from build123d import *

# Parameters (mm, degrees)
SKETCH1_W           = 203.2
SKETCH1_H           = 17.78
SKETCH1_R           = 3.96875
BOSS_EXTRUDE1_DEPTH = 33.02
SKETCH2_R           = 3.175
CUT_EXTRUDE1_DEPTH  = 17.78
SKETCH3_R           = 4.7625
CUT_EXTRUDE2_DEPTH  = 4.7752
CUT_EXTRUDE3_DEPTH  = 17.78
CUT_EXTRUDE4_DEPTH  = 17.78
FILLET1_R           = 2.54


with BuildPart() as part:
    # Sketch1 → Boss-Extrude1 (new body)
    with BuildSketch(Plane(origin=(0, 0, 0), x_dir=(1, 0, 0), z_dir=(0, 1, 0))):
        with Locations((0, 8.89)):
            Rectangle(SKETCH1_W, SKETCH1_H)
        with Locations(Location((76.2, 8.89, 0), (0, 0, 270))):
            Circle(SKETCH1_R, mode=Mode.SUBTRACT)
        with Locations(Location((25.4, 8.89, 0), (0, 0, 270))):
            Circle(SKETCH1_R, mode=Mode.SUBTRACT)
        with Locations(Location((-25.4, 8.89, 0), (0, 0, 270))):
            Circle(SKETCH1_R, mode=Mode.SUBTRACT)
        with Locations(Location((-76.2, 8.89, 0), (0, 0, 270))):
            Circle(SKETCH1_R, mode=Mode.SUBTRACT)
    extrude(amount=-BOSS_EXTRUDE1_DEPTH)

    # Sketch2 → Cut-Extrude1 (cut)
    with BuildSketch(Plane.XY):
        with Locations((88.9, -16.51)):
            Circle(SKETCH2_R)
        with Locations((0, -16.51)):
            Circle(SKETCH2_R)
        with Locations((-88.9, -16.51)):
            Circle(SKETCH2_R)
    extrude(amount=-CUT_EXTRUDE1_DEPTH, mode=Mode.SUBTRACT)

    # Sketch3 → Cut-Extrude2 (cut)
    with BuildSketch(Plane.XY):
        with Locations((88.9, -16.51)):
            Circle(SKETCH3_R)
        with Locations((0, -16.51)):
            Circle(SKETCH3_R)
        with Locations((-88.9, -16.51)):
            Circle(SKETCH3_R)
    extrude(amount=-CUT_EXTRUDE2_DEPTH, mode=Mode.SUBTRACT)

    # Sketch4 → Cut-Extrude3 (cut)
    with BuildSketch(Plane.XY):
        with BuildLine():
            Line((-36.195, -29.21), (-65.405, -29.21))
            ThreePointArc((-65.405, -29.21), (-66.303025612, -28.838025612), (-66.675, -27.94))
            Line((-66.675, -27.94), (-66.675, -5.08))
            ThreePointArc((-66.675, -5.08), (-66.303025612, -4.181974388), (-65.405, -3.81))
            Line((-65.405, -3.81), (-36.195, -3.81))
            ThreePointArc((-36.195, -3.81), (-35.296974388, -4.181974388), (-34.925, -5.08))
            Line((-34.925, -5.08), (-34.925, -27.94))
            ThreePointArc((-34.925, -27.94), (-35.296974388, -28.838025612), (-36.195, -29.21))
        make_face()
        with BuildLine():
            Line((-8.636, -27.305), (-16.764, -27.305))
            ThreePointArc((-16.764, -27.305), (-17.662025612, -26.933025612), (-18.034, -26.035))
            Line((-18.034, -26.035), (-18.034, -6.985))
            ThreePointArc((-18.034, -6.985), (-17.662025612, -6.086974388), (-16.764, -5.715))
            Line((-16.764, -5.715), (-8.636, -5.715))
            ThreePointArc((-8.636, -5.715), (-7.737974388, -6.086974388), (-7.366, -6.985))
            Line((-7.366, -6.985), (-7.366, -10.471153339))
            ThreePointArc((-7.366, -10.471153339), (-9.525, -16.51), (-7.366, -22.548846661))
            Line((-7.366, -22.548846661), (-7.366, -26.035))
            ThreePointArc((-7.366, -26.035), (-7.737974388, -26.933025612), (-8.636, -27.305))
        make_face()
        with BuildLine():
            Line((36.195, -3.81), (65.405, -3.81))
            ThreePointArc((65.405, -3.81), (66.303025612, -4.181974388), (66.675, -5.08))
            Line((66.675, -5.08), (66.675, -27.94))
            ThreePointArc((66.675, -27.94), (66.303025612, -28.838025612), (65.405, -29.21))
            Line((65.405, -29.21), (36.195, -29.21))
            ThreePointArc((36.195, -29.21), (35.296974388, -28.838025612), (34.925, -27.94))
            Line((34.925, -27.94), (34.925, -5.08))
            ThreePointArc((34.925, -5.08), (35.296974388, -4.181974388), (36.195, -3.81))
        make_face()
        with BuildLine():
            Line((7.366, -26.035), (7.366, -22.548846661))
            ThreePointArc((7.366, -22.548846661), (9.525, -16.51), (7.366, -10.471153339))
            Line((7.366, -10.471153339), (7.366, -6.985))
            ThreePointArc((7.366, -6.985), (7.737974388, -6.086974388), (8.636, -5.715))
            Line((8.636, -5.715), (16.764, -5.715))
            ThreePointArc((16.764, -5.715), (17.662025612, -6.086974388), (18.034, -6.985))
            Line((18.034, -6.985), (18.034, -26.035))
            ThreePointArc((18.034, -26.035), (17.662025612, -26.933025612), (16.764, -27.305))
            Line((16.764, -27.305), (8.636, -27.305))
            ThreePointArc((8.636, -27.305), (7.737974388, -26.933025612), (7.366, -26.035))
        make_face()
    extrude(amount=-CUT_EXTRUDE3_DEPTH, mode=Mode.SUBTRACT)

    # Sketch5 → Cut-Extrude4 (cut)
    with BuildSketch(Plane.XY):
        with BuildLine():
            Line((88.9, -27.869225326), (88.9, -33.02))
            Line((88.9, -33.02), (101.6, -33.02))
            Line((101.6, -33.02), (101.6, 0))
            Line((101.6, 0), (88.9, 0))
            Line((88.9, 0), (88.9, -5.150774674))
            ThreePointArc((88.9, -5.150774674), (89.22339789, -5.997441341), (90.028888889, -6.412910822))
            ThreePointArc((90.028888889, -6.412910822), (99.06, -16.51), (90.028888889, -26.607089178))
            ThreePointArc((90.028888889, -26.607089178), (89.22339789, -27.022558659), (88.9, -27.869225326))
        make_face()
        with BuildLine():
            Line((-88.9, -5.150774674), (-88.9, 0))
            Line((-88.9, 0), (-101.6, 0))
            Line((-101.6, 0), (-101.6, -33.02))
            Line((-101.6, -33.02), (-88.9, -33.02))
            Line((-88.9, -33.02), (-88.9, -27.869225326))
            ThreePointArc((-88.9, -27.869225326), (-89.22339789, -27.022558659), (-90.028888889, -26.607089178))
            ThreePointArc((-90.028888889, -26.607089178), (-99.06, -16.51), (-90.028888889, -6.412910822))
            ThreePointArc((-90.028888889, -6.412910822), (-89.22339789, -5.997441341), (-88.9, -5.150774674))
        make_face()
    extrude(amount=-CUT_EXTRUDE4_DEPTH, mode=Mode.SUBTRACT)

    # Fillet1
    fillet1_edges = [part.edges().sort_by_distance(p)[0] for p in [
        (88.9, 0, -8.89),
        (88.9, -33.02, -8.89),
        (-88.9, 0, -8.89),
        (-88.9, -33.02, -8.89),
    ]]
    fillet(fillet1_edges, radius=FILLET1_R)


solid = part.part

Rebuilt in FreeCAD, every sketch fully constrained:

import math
import FreeCAD as App
import Part
import Sketcher
from FreeCAD import Vector
Q = App.Units.Quantity


def edges_at(feature, points):
    """Names of the edges that pass closest to the given points."""
    edges = feature.Shape.Edges
    near = lambda p: min(range(len(edges)), key=lambda i: edges[i].distToShape(Part.Vertex(*p))[0])
    return sorted({f"Edge{near(p) + 1}" for p in points})


def add_polygon(sketch, points):
    """Adds a closed chain of lines whose ends are joined by coincident constraints."""
    first, n = sketch.GeometryCount, len(points)
    for a, b in zip(points, points[1:] + points[:1]):
        sketch.addGeometry(Part.LineSegment(App.Vector(*a, 0), App.Vector(*b, 0)), False)
    for i in range(n):
        sketch.addConstraint(Sketcher.Constraint("Coincident", first + i, 2, first + (i + 1) % n, 1))

doc = App.newDocument("Part")
body = doc.addObject("PartDesign::Body", "Body")

sketch1 = doc.addObject("Sketcher::SketchObject", "Sketch")
body.addObject(sketch1)
sketch1.AttachmentSupport = (doc.XZ_Plane, [""])
sketch1.MapMode = "FlatFace"
add_polygon(sketch1, [(-101.6, -17.8), (-101.6, 0), (101.6, 0), (101.6, -17.8)])
sketch1.addGeometry(Part.Circle(Vector(-76.2, -8.9, 0), Vector(0, 0, 1), 4), False)
sketch1.addGeometry(Part.Circle(Vector(-25.4, -8.9, 0), Vector(0, 0, 1), 4), False)
sketch1.addGeometry(Part.Circle(Vector(25.4, -8.9, 0), Vector(0, 0, 1), 4), False)
sketch1.addGeometry(Part.Circle(Vector(76.2, -8.9, 0), Vector(0, 0, 1), 4), False)
sketch1.addConstraint([
    Sketcher.Constraint("Vertical", 0),
    Sketcher.Constraint("Horizontal", 1),
    Sketcher.Constraint("Vertical", 2),
    Sketcher.Constraint("Horizontal", 3),
    Sketcher.Constraint("Equal", 4, 5),
    Sketcher.Constraint("Equal", 5, 6),
    Sketcher.Constraint("Equal", 6, 7),
    Sketcher.Constraint("Symmetric", 0, 2, 1, 2, -1, 1),
    Sketcher.Constraint("Symmetric", 5, 3, 6, 3, -2),
    Sketcher.Constraint("Symmetric", 4, 3, 7, 3, -2),
    Sketcher.Constraint("Horizontal", 4, 3, 5, 3),
    Sketcher.Constraint("DistanceX", 1, 1, 1, 2, Q("8 in")),
    Sketcher.Constraint("Diameter", 4, Q("0.3125 in")),
    Sketcher.Constraint("DistanceY", 0, 1, 0, 2, Q("0.7 in")),
    Sketcher.Constraint("DistanceX", 4, 3, -1, 1, Q("3 in")),
    Sketcher.Constraint("DistanceX", 5, 3, -1, 1, Q("1 in")),
    Sketcher.Constraint("DistanceY", 4, 3, -1, 1, Q("0.35 in")),
])
pad1 = doc.addObject("PartDesign::Pad", "Pad")
body.addObject(pad1)
pad1.Profile = sketch1
pad1.Length = Q("1.3 in")

sketch2 = doc.addObject("Sketcher::SketchObject", "Sketch001")
body.addObject(sketch2)
sketch2.AttachmentSupport = (doc.XY_Plane, [""])
sketch2.MapMode = "FlatFace"
sketch2.addGeometry([
    Part.Circle(Vector(88.9, -16.5, 0), Vector(0, 0, 1), 3.2),
    Part.Circle(Vector(0, -16.5, 0), Vector(0, 0, 1), 3.2),
    Part.Circle(Vector(-88.9, -16.5, 0), Vector(0, 0, 1), 3.2),
], False)
sketch2.addConstraint([
    Sketcher.Constraint("Equal", 0, 1),
    Sketcher.Constraint("Equal", 1, 2),
    Sketcher.Constraint("Symmetric", 0, 3, 2, 3, -2),
    Sketcher.Constraint("PointOnObject", 1, 3, -2),
    Sketcher.Constraint("Horizontal", 0, 3, 1, 3),
    Sketcher.Constraint("Diameter", 0, Q("0.25 in")),
    Sketcher.Constraint("DistanceX", 2, 3, 0, 3, Q("7 in")),
    Sketcher.Constraint("DistanceY", 0, 3, -1, 1, Q("0.65 in")),
])
pocket1 = doc.addObject("PartDesign::Pocket", "Pocket")
body.addObject(pocket1)
pocket1.Profile = sketch2
pocket1.Length = Q("0.7 in")

sketch3 = doc.addObject("Sketcher::SketchObject", "Sketch002")
body.addObject(sketch3)
sketch3.AttachmentSupport = (doc.XY_Plane, [""])
sketch3.MapMode = "FlatFace"
sketch3.addGeometry([
    Part.Circle(Vector(88.9, -16.5, 0), Vector(0, 0, 1), 4.8),
    Part.Circle(Vector(0, -16.5, 0), Vector(0, 0, 1), 4.8),
    Part.Circle(Vector(-88.9, -16.5, 0), Vector(0, 0, 1), 4.8),
], False)
sketch3.addConstraint([
    Sketcher.Constraint("Equal", 0, 1),
    Sketcher.Constraint("Equal", 1, 2),
    Sketcher.Constraint("Symmetric", 0, 3, 2, 3, -2),
    Sketcher.Constraint("PointOnObject", 1, 3, -2),
    Sketcher.Constraint("Horizontal", 0, 3, 1, 3),
    Sketcher.Constraint("Diameter", 0, Q("0.375 in")),
    Sketcher.Constraint("DistanceX", 2, 3, 0, 3, Q("7 in")),
    Sketcher.Constraint("DistanceY", 0, 3, -1, 1, Q("0.65 in")),
])
pocket2 = doc.addObject("PartDesign::Pocket", "Pocket001")
body.addObject(pocket2)
pocket2.Profile = sketch3
pocket2.Length = Q("0.188 in")

sketch4 = doc.addObject("Sketcher::SketchObject", "Sketch003")
body.addObject(sketch4)
sketch4.AttachmentSupport = (doc.XY_Plane, [""])
sketch4.MapMode = "FlatFace"
sketch4.addGeometry([
    Part.LineSegment(Vector(-65.4, -29.2, 0), Vector(-36.2, -29.2, 0)),
    Part.ArcOfCircle(Part.Circle(Vector(-36.2, -27.9, 0), Vector(0, 0, 1), 1.3), math.radians(-90), math.radians(0)),
    Part.LineSegment(Vector(-34.9, -27.9, 0), Vector(-34.9, -5.1, 0)),
    Part.ArcOfCircle(Part.Circle(Vector(-36.2, -5.1, 0), Vector(0, 0, 1), 1.3), math.radians(0), math.radians(90)),
    Part.LineSegment(Vector(-36.2, -3.8, 0), Vector(-65.4, -3.8, 0)),
    Part.ArcOfCircle(Part.Circle(Vector(-65.4, -5.1, 0), Vector(0, 0, 1), 1.3), math.radians(90), math.radians(180)),
    Part.LineSegment(Vector(-66.7, -5.1, 0), Vector(-66.7, -27.9, 0)),
    Part.ArcOfCircle(Part.Circle(Vector(-65.4, -27.9, 0), Vector(0, 0, 1), 1.3), math.radians(180), math.radians(270)),
    Part.LineSegment(Vector(-16.8, -27.3, 0), Vector(-8.6, -27.3, 0)),
    Part.ArcOfCircle(Part.Circle(Vector(-8.6, -26, 0), Vector(0, 0, 1), 1.3), math.radians(-90), math.radians(0)),
    Part.LineSegment(Vector(-7.4, -26, 0), Vector(-7.4, -22.5, 0)),
    Part.ArcOfCircle(Part.Circle(Vector(0, -16.5, 0), Vector(0, 0, 1), 9.5), math.radians(141), math.radians(219)),
    Part.LineSegment(Vector(-7.4, -10.5, 0), Vector(-7.4, -7, 0)),
    Part.ArcOfCircle(Part.Circle(Vector(-8.6, -7, 0), Vector(0, 0, 1), 1.3), math.radians(0), math.radians(90)),
    Part.LineSegment(Vector(-8.6, -5.7, 0), Vector(-16.8, -5.7, 0)),
    Part.ArcOfCircle(Part.Circle(Vector(-16.8, -7, 0), Vector(0, 0, 1), 1.3), math.radians(90), math.radians(180)),
    Part.LineSegment(Vector(-18, -7, 0), Vector(-18, -26, 0)),
    Part.ArcOfCircle(Part.Circle(Vector(-16.8, -26, 0), Vector(0, 0, 1), 1.3), math.radians(180), math.radians(270)),
    Part.LineSegment(Vector(65.4, -3.8, 0), Vector(36.2, -3.8, 0)),
    Part.ArcOfCircle(Part.Circle(Vector(36.2, -5.1, 0), Vector(0, 0, 1), 1.3), math.radians(90), math.radians(180)),
    Part.LineSegment(Vector(34.9, -5.1, 0), Vector(34.9, -27.9, 0)),
    Part.ArcOfCircle(Part.Circle(Vector(36.2, -27.9, 0), Vector(0, 0, 1), 1.3), math.radians(180), math.radians(270)),
    Part.LineSegment(Vector(36.2, -29.2, 0), Vector(65.4, -29.2, 0)),
    Part.ArcOfCircle(Part.Circle(Vector(65.4, -27.9, 0), Vector(0, 0, 1), 1.3), math.radians(-90), math.radians(0)),
    Part.LineSegment(Vector(66.7, -27.9, 0), Vector(66.7, -5.1, 0)),
    Part.ArcOfCircle(Part.Circle(Vector(65.4, -5.1, 0), Vector(0, 0, 1), 1.3), math.radians(0), math.radians(90)),
    Part.LineSegment(Vector(7.4, -22.5, 0), Vector(7.4, -26, 0)),
    Part.ArcOfCircle(Part.Circle(Vector(8.6, -26, 0), Vector(0, 0, 1), 1.3), math.radians(180), math.radians(270)),
    Part.LineSegment(Vector(8.6, -27.3, 0), Vector(16.8, -27.3, 0)),
    Part.ArcOfCircle(Part.Circle(Vector(16.8, -26, 0), Vector(0, 0, 1), 1.3), math.radians(-90), math.radians(0)),
    Part.LineSegment(Vector(18, -26, 0), Vector(18, -7, 0)),
    Part.ArcOfCircle(Part.Circle(Vector(16.8, -7, 0), Vector(0, 0, 1), 1.3), math.radians(0), math.radians(90)),
    Part.LineSegment(Vector(16.8, -5.7, 0), Vector(8.6, -5.7, 0)),
    Part.ArcOfCircle(Part.Circle(Vector(8.6, -7, 0), Vector(0, 0, 1), 1.3), math.radians(90), math.radians(180)),
    Part.LineSegment(Vector(7.4, -7, 0), Vector(7.4, -10.5, 0)),
    Part.ArcOfCircle(Part.Circle(Vector(0, -16.5, 0), Vector(0, 0, 1), 9.5), math.radians(-39), math.radians(39)),
], False)
sketch4.addConstraint([
    Sketcher.Constraint("Tangent", 0, 2, 1, 1),
    Sketcher.Constraint("Tangent", 1, 2, 2, 1),
    Sketcher.Constraint("Tangent", 2, 2, 3, 1),
    Sketcher.Constraint("Tangent", 3, 2, 4, 1),
    Sketcher.Constraint("Tangent", 4, 2, 5, 1),
    Sketcher.Constraint("Tangent", 5, 2, 6, 1),
    Sketcher.Constraint("Tangent", 6, 2, 7, 1),
    Sketcher.Constraint("Tangent", 7, 2, 0, 1),
    Sketcher.Constraint("Tangent", 8, 2, 9, 1),
    Sketcher.Constraint("Tangent", 9, 2, 10, 1),
    Sketcher.Constraint("Coincident", 10, 2, 11, 2),
    Sketcher.Constraint("Coincident", 11, 1, 12, 1),
    Sketcher.Constraint("Tangent", 12, 2, 13, 1),
    Sketcher.Constraint("Tangent", 13, 2, 14, 1),
    Sketcher.Constraint("Tangent", 14, 2, 15, 1),
    Sketcher.Constraint("Tangent", 15, 2, 16, 1),
    Sketcher.Constraint("Tangent", 16, 2, 17, 1),
    Sketcher.Constraint("Tangent", 17, 2, 8, 1),
    Sketcher.Constraint("Tangent", 18, 2, 19, 1),
    Sketcher.Constraint("Tangent", 19, 2, 20, 1),
    Sketcher.Constraint("Tangent", 20, 2, 21, 1),
    Sketcher.Constraint("Tangent", 21, 2, 22, 1),
    Sketcher.Constraint("Tangent", 22, 2, 23, 1),
    Sketcher.Constraint("Tangent", 23, 2, 24, 1),
    Sketcher.Constraint("Tangent", 24, 2, 25, 1),
    Sketcher.Constraint("Tangent", 25, 2, 18, 1),
    Sketcher.Constraint("Tangent", 26, 2, 27, 1),
    Sketcher.Constraint("Tangent", 27, 2, 28, 1),
    Sketcher.Constraint("Tangent", 28, 2, 29, 1),
    Sketcher.Constraint("Tangent", 29, 2, 30, 1),
    Sketcher.Constraint("Tangent", 30, 2, 31, 1),
    Sketcher.Constraint("Tangent", 31, 2, 32, 1),
    Sketcher.Constraint("Tangent", 32, 2, 33, 1),
    Sketcher.Constraint("Tangent", 33, 2, 34, 1),
    Sketcher.Constraint("Coincident", 34, 2, 35, 2),
    Sketcher.Constraint("Coincident", 35, 1, 26, 1),
    Sketcher.Constraint("Horizontal", 0),
    Sketcher.Constraint("Vertical", 2),
    Sketcher.Constraint("Horizontal", 4),
    Sketcher.Constraint("Vertical", 6),
    Sketcher.Constraint("Horizontal", 8),
    Sketcher.Constraint("Vertical", 10),
    Sketcher.Constraint("Vertical", 12),
    Sketcher.Constraint("Horizontal", 14),
    Sketcher.Constraint("Vertical", 16),
    Sketcher.Constraint("Horizontal", 18),
    Sketcher.Constraint("Vertical", 20),
    Sketcher.Constraint("Horizontal", 22),
    Sketcher.Constraint("Vertical", 24),
    Sketcher.Constraint("Vertical", 26),
    Sketcher.Constraint("Horizontal", 28),
    Sketcher.Constraint("Vertical", 30),
    Sketcher.Constraint("Horizontal", 32),
    Sketcher.Constraint("Vertical", 34),
    Sketcher.Constraint("Coincident", 35, 3, 11, 3),
    Sketcher.Constraint("Equal", 1, 3),
    Sketcher.Constraint("Equal", 3, 5),
    Sketcher.Constraint("Equal", 5, 7),
    Sketcher.Constraint("Equal", 7, 9),
    Sketcher.Constraint("Equal", 9, 13),
    Sketcher.Constraint("Equal", 13, 15),
    Sketcher.Constraint("Equal", 15, 17),
    Sketcher.Constraint("Equal", 17, 19),
    Sketcher.Constraint("Equal", 19, 21),
    Sketcher.Constraint("Equal", 21, 23),
    Sketcher.Constraint("Equal", 23, 25),
    Sketcher.Constraint("Equal", 25, 27),
    Sketcher.Constraint("Equal", 27, 29),
    Sketcher.Constraint("Equal", 29, 31),
    Sketcher.Constraint("Equal", 31, 33),
    Sketcher.Constraint("Equal", 11, 35),
    Sketcher.Constraint("Symmetric", 3, 3, 19, 3, -2),
    Sketcher.Constraint("Symmetric", 7, 3, 23, 3, -2),
    Sketcher.Constraint("Symmetric", 9, 3, 27, 3, -2),
    Sketcher.Constraint("Symmetric", 15, 3, 31, 3, -2),
    Sketcher.Constraint("Symmetric", 11, 1, 34, 2, -2),
    Sketcher.Constraint("Vertical", 9, 3, 13, 3),
    Sketcher.Constraint("Equal", 10, 12),
    Sketcher.Constraint("Radius", 1, Q("0.05 in")),
    Sketcher.Constraint("DistanceY", 2, 1, 2, 2, Q("0.9 in")),
    Sketcher.Constraint("Radius", 11, Q("0.375 in")),
    Sketcher.Constraint("DistanceX", 17, 3, 27, 3, Q("1 in")),
    Sketcher.Constraint("DistanceX", 0, 1, 0, 2, Q("1.15 in")),
    Sketcher.Constraint("DistanceX", 8, 1, 8, 2, Q("0.32 in")),
    Sketcher.Constraint("DistanceY", 16, 2, 16, 1, Q("0.75 in")),
    Sketcher.Constraint("DistanceY", 1, 3, -1, 1, Q("1.1 in")),
    Sketcher.Constraint("DistanceY", 11, 3, -1, 1, Q("0.65 in")),
    Sketcher.Constraint("DistanceX", 1, 3, -1, 1, Q("1.425 in")),
])
pocket3 = doc.addObject("PartDesign::Pocket", "Pocket002")
body.addObject(pocket3)
pocket3.Profile = sketch4
pocket3.Length = Q("0.7 in")

sketch5 = doc.addObject("Sketcher::SketchObject", "Sketch004")
body.addObject(sketch5)
sketch5.AttachmentSupport = (doc.XY_Plane, [""])
sketch5.MapMode = "FlatFace"
sketch5.addGeometry([
    Part.LineSegment(Vector(88.9, -27.9, 0), Vector(88.9, -33, 0)),
    Part.LineSegment(Vector(88.9, -33, 0), Vector(101.6, -33, 0)),
    Part.LineSegment(Vector(101.6, -33, 0), Vector(101.6, 0, 0)),
    Part.LineSegment(Vector(101.6, 0, 0), Vector(88.9, 0, 0)),
    Part.LineSegment(Vector(88.9, 0, 0), Vector(88.9, -5.2, 0)),
    Part.ArcOfCircle(Part.Circle(Vector(90.2, -5.2, 0), Vector(0, 0, 1), 1.3), math.radians(-180), math.radians(-96)),
    Part.ArcOfCircle(Part.Circle(Vector(88.9, -16.5, 0), Vector(0, 0, 1), 10.2), math.radians(-84), math.radians(84)),
    Part.ArcOfCircle(Part.Circle(Vector(90.2, -27.9, 0), Vector(0, 0, 1), 1.3), math.radians(96), math.radians(180)),
    Part.LineSegment(Vector(-88.9, -5.2, 0), Vector(-88.9, 0, 0)),
    Part.LineSegment(Vector(-88.9, 0, 0), Vector(-101.6, 0, 0)),
    Part.LineSegment(Vector(-101.6, 0, 0), Vector(-101.6, -33, 0)),
    Part.LineSegment(Vector(-101.6, -33, 0), Vector(-88.9, -33, 0)),
    Part.LineSegment(Vector(-88.9, -33, 0), Vector(-88.9, -27.9, 0)),
    Part.ArcOfCircle(Part.Circle(Vector(-90.2, -27.9, 0), Vector(0, 0, 1), 1.3), math.radians(0), math.radians(84)),
    Part.ArcOfCircle(Part.Circle(Vector(-88.9, -16.5, 0), Vector(0, 0, 1), 10.2), math.radians(96), math.radians(264)),
    Part.ArcOfCircle(Part.Circle(Vector(-90.2, -5.2, 0), Vector(0, 0, 1), 1.3), math.radians(-84), math.radians(0)),
], False)
sketch5.addConstraint([
    Sketcher.Constraint("Coincident", 0, 2, 1, 1),
    Sketcher.Constraint("Coincident", 1, 2, 2, 1),
    Sketcher.Constraint("Coincident", 2, 2, 3, 1),
    Sketcher.Constraint("Coincident", 3, 2, 4, 1),
    Sketcher.Constraint("Tangent", 4, 2, 5, 1),
    Sketcher.Constraint("Tangent", 5, 2, 6, 2),
    Sketcher.Constraint("Tangent", 6, 1, 7, 1),
    Sketcher.Constraint("Tangent", 7, 2, 0, 1),
    Sketcher.Constraint("Coincident", 8, 2, 9, 1),
    Sketcher.Constraint("Coincident", 9, 2, 10, 1),
    Sketcher.Constraint("Coincident", 10, 2, 11, 1),
    Sketcher.Constraint("Coincident", 11, 2, 12, 1),
    Sketcher.Constraint("Tangent", 12, 2, 13, 1),
    Sketcher.Constraint("Tangent", 13, 2, 14, 2),
    Sketcher.Constraint("Tangent", 14, 1, 15, 1),
    Sketcher.Constraint("Tangent", 15, 2, 8, 1),
    Sketcher.Constraint("Vertical", 0),
    Sketcher.Constraint("Horizontal", 1),
    Sketcher.Constraint("Vertical", 2),
    Sketcher.Constraint("Horizontal", 3),
    Sketcher.Constraint("Vertical", 4),
    Sketcher.Constraint("Vertical", 8),
    Sketcher.Constraint("Horizontal", 9),
    Sketcher.Constraint("Vertical", 10),
    Sketcher.Constraint("Horizontal", 11),
    Sketcher.Constraint("Vertical", 12),
    Sketcher.Constraint("Equal", 5, 7),
    Sketcher.Constraint("Equal", 7, 13),
    Sketcher.Constraint("Equal", 6, 14),
    Sketcher.Constraint("Equal", 13, 15),
    Sketcher.Constraint("Symmetric", 3, 2, 8, 2, -1, 1),
    Sketcher.Constraint("Symmetric", 7, 3, 13, 3, -2),
    Sketcher.Constraint("Symmetric", 2, 2, 9, 2, -2),
    Sketcher.Constraint("Horizontal", 6, 3, 14, 3),
    Sketcher.Constraint("Horizontal", 1, 2, 10, 2),
    Sketcher.Constraint("Vertical", 5, 3, 7, 3),
    Sketcher.Constraint("Vertical", 6, 3, 0, 2),
    Sketcher.Constraint("Equal", 0, 4),
    Sketcher.Constraint("Radius", 6, Q("0.4 in")),
    Sketcher.Constraint("Radius", 5, Q("0.05 in")),
    Sketcher.Constraint("DistanceX", 1, 1, 1, 2, Q("0.5 in")),
    Sketcher.Constraint("DistanceY", 2, 1, 2, 2, Q("1.3 in")),
    Sketcher.Constraint("DistanceX", -1, 1, 1, 2, Q("4 in")),
])
pocket4 = doc.addObject("PartDesign::Pocket", "Pocket003")
body.addObject(pocket4)
pocket4.Profile = sketch5
pocket4.Length = Q("0.7 in")
doc.recompute()

fillet = doc.addObject("PartDesign::Fillet", "Fillet")
body.addObject(fillet)
fillet.Base = (pocket4, edges_at(pocket4, [
    (88.9, 0, -8.89),
    (88.9, -33.02, -8.89),
    (-88.9, 0, -8.89),
    (-88.9, -33.02, -8.89),
]))
fillet.Radius = Q("0.1 in")

doc.recompute()
